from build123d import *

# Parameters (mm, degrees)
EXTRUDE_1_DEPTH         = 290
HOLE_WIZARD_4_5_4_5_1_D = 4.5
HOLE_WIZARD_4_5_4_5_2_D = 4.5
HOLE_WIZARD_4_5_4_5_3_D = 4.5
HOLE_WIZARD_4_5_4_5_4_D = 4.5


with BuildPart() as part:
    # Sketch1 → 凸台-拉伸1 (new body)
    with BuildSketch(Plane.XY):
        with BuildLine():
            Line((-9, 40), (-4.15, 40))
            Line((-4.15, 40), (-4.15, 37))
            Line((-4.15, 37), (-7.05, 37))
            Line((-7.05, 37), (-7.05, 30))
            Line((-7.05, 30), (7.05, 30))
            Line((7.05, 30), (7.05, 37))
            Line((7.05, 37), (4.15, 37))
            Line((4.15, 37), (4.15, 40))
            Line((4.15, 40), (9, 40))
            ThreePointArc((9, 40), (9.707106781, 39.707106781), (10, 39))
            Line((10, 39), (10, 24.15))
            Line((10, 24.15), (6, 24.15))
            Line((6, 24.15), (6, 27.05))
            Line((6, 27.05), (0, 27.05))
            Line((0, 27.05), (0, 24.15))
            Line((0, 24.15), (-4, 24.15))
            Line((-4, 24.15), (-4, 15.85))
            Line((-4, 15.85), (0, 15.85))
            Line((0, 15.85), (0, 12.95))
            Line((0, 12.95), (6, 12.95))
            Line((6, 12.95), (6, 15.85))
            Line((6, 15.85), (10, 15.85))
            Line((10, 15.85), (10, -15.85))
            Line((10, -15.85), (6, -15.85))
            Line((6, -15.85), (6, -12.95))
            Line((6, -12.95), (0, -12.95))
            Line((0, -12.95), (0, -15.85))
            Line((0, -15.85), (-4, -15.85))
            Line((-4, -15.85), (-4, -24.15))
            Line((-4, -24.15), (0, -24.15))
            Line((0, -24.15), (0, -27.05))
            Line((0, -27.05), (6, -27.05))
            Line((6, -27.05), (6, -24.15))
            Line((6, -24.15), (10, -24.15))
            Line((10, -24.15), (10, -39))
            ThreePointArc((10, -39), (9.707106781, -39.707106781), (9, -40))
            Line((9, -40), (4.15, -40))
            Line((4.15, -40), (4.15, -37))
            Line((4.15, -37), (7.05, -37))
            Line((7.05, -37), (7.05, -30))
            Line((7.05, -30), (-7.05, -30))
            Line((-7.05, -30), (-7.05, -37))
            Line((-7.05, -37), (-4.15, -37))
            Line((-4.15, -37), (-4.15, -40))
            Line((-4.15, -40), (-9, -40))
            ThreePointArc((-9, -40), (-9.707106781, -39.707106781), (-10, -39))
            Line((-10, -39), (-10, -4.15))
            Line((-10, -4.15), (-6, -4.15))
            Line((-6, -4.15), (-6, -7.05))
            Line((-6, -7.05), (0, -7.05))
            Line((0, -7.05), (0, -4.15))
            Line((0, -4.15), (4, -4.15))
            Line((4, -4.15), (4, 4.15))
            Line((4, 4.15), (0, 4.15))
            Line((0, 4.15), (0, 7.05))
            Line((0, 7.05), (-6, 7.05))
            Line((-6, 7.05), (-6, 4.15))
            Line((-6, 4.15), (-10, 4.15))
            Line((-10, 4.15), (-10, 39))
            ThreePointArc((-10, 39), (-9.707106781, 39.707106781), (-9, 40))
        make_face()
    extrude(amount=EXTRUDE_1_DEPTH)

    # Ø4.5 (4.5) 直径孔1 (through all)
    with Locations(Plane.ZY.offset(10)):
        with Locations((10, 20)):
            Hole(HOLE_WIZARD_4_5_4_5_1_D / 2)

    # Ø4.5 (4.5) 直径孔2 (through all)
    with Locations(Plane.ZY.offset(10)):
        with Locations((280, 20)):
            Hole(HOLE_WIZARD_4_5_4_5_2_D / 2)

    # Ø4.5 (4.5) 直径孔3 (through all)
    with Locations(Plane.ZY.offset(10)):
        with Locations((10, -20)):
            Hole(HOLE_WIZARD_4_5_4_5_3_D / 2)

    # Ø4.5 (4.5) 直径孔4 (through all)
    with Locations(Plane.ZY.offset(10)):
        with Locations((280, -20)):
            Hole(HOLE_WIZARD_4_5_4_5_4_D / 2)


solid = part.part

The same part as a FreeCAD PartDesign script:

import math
import FreeCAD as App
import Part
import Sketcher

V = App.Vector
Q = App.Units.Quantity

doc = App.newDocument("Part")
body = doc.addObject("PartDesign::Body", "Body")

# Sketch on XY plane
sketch1 = body.newObject("Sketcher::SketchObject", "Sketch")
sketch1.AttachmentSupport = (doc.getObject("XY_Plane"), [""])
sketch1.MapMode = "FlatFace"
sketch1.addGeometry(Part.LineSegment(V(-4.15, 40, 0), V(-9, 40, 0)), False)
sketch1.addGeometry(Part.ArcOfCircle(Part.Circle(V(-9, 39, 0), V(0, 0, 1), 1), math.radians(90), math.radians(180)), False)
sketch1.addGeometry(Part.LineSegment(V(-10, 39, 0), V(-10, 4.15, 0)), False)
sketch1.addGeometry(Part.LineSegment(V(-10, 4.15, 0), V(-6, 4.15, 0)), False)
sketch1.addGeometry(Part.LineSegment(V(-6, 4.15, 0), V(-6, 7.05, 0)), False)
sketch1.addGeometry(Part.LineSegment(V(-6, 7.05, 0), V(0, 7.05, 0)), False)
sketch1.addGeometry(Part.LineSegment(V(0, 7.05, 0), V(0, 4.15, 0)), False)
sketch1.addGeometry(Part.LineSegment(V(0, 4.15, 0), V(4, 4.15, 0)), False)
sketch1.addGeometry(Part.LineSegment(V(4, 4.15, 0), V(4, -4.15, 0)), False)
sketch1.addGeometry(Part.LineSegment(V(4, -4.15, 0), V(0, -4.15, 0)), False)
sketch1.addGeometry(Part.LineSegment(V(0, -4.15, 0), V(0, -7.05, 0)), False)
sketch1.addGeometry(Part.LineSegment(V(0, -7.05, 0), V(-6, -7.05, 0)), False)
sketch1.addGeometry(Part.LineSegment(V(-6, -7.05, 0), V(-6, -4.15, 0)), False)
sketch1.addGeometry(Part.LineSegment(V(-6, -4.15, 0), V(-10, -4.15, 0)), False)
sketch1.addGeometry(Part.LineSegment(V(-10, -4.15, 0), V(-10, -39, 0)), False)
sketch1.addGeometry(Part.ArcOfCircle(Part.Circle(V(-9, -39, 0), V(0, 0, 1), 1), math.radians(-180), math.radians(-90)), False)
sketch1.addGeometry(Part.LineSegment(V(-9, -40, 0), V(-4.15, -40, 0)), False)
sketch1.addGeometry(Part.LineSegment(V(-4.15, -40, 0), V(-4.15, -37, 0)), False)
sketch1.addGeometry(Part.LineSegment(V(-4.15, -37, 0), V(-7.05, -37, 0)), False)
sketch1.addGeometry(Part.LineSegment(V(-7.05, -37, 0), V(-7.05, -30, 0)), False)
sketch1.addGeometry(Part.LineSegment(V(-7.05, -30, 0), V(7.05, -30, 0)), False)
sketch1.addGeometry(Part.LineSegment(V(7.05, -30, 0), V(7.05, -37, 0)), False)
sketch1.addGeometry(Part.LineSegment(V(7.05, -37, 0), V(4.15, -37, 0)), False)
sketch1.addGeometry(Part.LineSegment(V(4.15, -37, 0), V(4.15, -40, 0)), False)
sketch1.addGeometry(Part.LineSegment(V(4.15, -40, 0), V(9, -40, 0)), False)
sketch1.addGeometry(Part.ArcOfCircle(Part.Circle(V(9, -39, 0), V(0, 0, 1), 1), math.radians(-90), math.radians(0)), False)
sketch1.addGeometry(Part.LineSegment(V(10, -39, 0), V(10, -24.15, 0)), False)
sketch1.addGeometry(Part.LineSegment(V(10, -24.15, 0), V(6, -24.15, 0)), False)
sketch1.addGeometry(Part.LineSegment(V(6, -24.15, 0), V(6, -27.05, 0)), False)
sketch1.addGeometry(Part.LineSegment(V(6, -27.05, 0), V(0, -27.05, 0)), False)
sketch1.addGeometry(Part.LineSegment(V(0, -27.05, 0), V(0, -24.15, 0)), False)
sketch1.addGeometry(Part.LineSegment(V(0, -24.15, 0), V(-4, -24.15, 0)), False)
sketch1.addGeometry(Part.LineSegment(V(-4, -24.15, 0), V(-4, -15.85, 0)), False)
sketch1.addGeometry(Part.LineSegment(V(-4, -15.85, 0), V(0, -15.85, 0)), False)
sketch1.addGeometry(Part.LineSegment(V(0, -15.85, 0), V(0, -12.95, 0)), False)
sketch1.addGeometry(Part.LineSegment(V(0, -12.95, 0), V(6, -12.95, 0)), False)
sketch1.addGeometry(Part.LineSegment(V(6, -12.95, 0), V(6, -15.85, 0)), False)
sketch1.addGeometry(Part.LineSegment(V(6, -15.85, 0), V(10, -15.85, 0)), False)
sketch1.addGeometry(Part.LineSegment(V(10, -15.85, 0), V(10, 15.85, 0)), False)
sketch1.addGeometry(Part.LineSegment(V(10, 15.85, 0), V(6, 15.85, 0)), False)
sketch1.addGeometry(Part.LineSegment(V(6, 15.85, 0), V(6, 12.95, 0)), False)
sketch1.addGeometry(Part.LineSegment(V(6, 12.95, 0), V(0, 12.95, 0)), False)
sketch1.addGeometry(Part.LineSegment(V(0, 12.95, 0), V(0, 15.85, 0)), False)
sketch1.addGeometry(Part.LineSegment(V(0, 15.85, 0), V(-4, 15.85, 0)), False)
sketch1.addGeometry(Part.LineSegment(V(-4, 15.85, 0), V(-4, 24.15, 0)), False)
sketch1.addGeometry(Part.LineSegment(V(-4, 24.15, 0), V(0, 24.15, 0)), False)
sketch1.addGeometry(Part.LineSegment(V(0, 24.15, 0), V(0, 27.05, 0)), False)
sketch1.addGeometry(Part.LineSegment(V(0, 27.05, 0), V(6, 27.05, 0)), False)
sketch1.addGeometry(Part.LineSegment(V(6, 27.05, 0), V(6, 24.15, 0)), False)
sketch1.addGeometry(Part.LineSegment(V(6, 24.15, 0), V(10, 24.15, 0)), False)
sketch1.addGeometry(Part.LineSegment(V(10, 24.15, 0), V(10, 39, 0)), False)
sketch1.addGeometry(Part.ArcOfCircle(Part.Circle(V(9, 39, 0), V(0, 0, 1), 1), math.radians(0), math.radians(90)), False)
sketch1.addGeometry(Part.LineSegment(V(9, 40, 0), V(4.15, 40, 0)), False)
sketch1.addGeometry(Part.LineSegment(V(4.15, 40, 0), V(4.15, 37, 0)), False)
sketch1.addGeometry(Part.LineSegment(V(4.15, 37, 0), V(7.05, 37, 0)), False)
sketch1.addGeometry(Part.LineSegment(V(7.05, 37, 0), V(7.05, 30, 0)), False)
sketch1.addGeometry(Part.LineSegment(V(7.05, 30, 0), V(-7.05, 30, 0)), False)
sketch1.addGeometry(Part.LineSegment(V(-7.05, 30, 0), V(-7.05, 37, 0)), False)
sketch1.addGeometry(Part.LineSegment(V(-7.05, 37, 0), V(-4.15, 37, 0)), False)
sketch1.addGeometry(Part.LineSegment(V(-4.15, 37, 0), V(-4.15, 40, 0)), False)
sketch1.addConstraint(Sketcher.Constraint("Tangent", 0, 2, 1, 1))
sketch1.addConstraint(Sketcher.Constraint("Tangent", 1, 2, 2, 1))
sketch1.addConstraint(Sketcher.Constraint("Coincident", 2, 2, 3, 1))
sketch1.addConstraint(Sketcher.Constraint("Coincident", 3, 2, 4, 1))
sketch1.addConstraint(Sketcher.Constraint("Coincident", 4, 2, 5, 1))
sketch1.addConstraint(Sketcher.Constraint("Coincident", 5, 2, 6, 1))
sketch1.addConstraint(Sketcher.Constraint("Coincident", 6, 2, 7, 1))
sketch1.addConstraint(Sketcher.Constraint("Coincident", 7, 2, 8, 1))
sketch1.addConstraint(Sketcher.Constraint("Coincident", 8, 2, 9, 1))
sketch1.addConstraint(Sketcher.Constraint("Coincident", 9, 2, 10, 1))
sketch1.addConstraint(Sketcher.Constraint("Coincident", 10, 2, 11, 1))
sketch1.addConstraint(Sketcher.Constraint("Coincident", 11, 2, 12, 1))
sketch1.addConstraint(Sketcher.Constraint("Coincident", 12, 2, 13, 1))
sketch1.addConstraint(Sketcher.Constraint("Coincident", 13, 2, 14, 1))
sketch1.addConstraint(Sketcher.Constraint("Tangent", 14, 2, 15, 1))
sketch1.addConstraint(Sketcher.Constraint("Tangent", 15, 2, 16, 1))
sketch1.addConstraint(Sketcher.Constraint("Coincident", 16, 2, 17, 1))
sketch1.addConstraint(Sketcher.Constraint("Coincident", 17, 2, 18, 1))
sketch1.addConstraint(Sketcher.Constraint("Coincident", 18, 2, 19, 1))
sketch1.addConstraint(Sketcher.Constraint("Coincident", 19, 2, 20, 1))
sketch1.addConstraint(Sketcher.Constraint("Coincident", 20, 2, 21, 1))
sketch1.addConstraint(Sketcher.Constraint("Coincident", 21, 2, 22, 1))
sketch1.addConstraint(Sketcher.Constraint("Coincident", 22, 2, 23, 1))
sketch1.addConstraint(Sketcher.Constraint("Coincident", 23, 2, 24, 1))
sketch1.addConstraint(Sketcher.Constraint("Tangent", 24, 2, 25, 1))
sketch1.addConstraint(Sketcher.Constraint("Tangent", 25, 2, 26, 1))
sketch1.addConstraint(Sketcher.Constraint("Coincident", 26, 2, 27, 1))
sketch1.addConstraint(Sketcher.Constraint("Coincident", 27, 2, 28, 1))
sketch1.addConstraint(Sketcher.Constraint("Coincident", 28, 2, 29, 1))
sketch1.addConstraint(Sketcher.Constraint("Coincident", 29, 2, 30, 1))
sketch1.addConstraint(Sketcher.Constraint("Coincident", 30, 2, 31, 1))
sketch1.addConstraint(Sketcher.Constraint("Coincident", 31, 2, 32, 1))
sketch1.addConstraint(Sketcher.Constraint("Coincident", 32, 2, 33, 1))
sketch1.addConstraint(Sketcher.Constraint("Coincident", 33, 2, 34, 1))
sketch1.addConstraint(Sketcher.Constraint("Coincident", 34, 2, 35, 1))
sketch1.addConstraint(Sketcher.Constraint("Coincident", 35, 2, 36, 1))
sketch1.addConstraint(Sketcher.Constraint("Coincident", 36, 2, 37, 1))
sketch1.addConstraint(Sketcher.Constraint("Coincident", 37, 2, 38, 1))
sketch1.addConstraint(Sketcher.Constraint("Coincident", 38, 2, 39, 1))
sketch1.addConstraint(Sketcher.Constraint("Coincident", 39, 2, 40, 1))
sketch1.addConstraint(Sketcher.Constraint("Coincident", 40, 2, 41, 1))
sketch1.addConstraint(Sketcher.Constraint("Coincident", 41, 2, 42, 1))
sketch1.addConstraint(Sketcher.Constraint("Coincident", 42, 2, 43, 1))
sketch1.addConstraint(Sketcher.Constraint("Coincident", 43, 2, 44, 1))
sketch1.addConstraint(Sketcher.Constraint("Coincident", 44, 2, 45, 1))
sketch1.addConstraint(Sketcher.Constraint("Coincident", 45, 2, 46, 1))
sketch1.addConstraint(Sketcher.Constraint("Coincident", 46, 2, 47, 1))
sketch1.addConstraint(Sketcher.Constraint("Coincident", 47, 2, 48, 1))
sketch1.addConstraint(Sketcher.Constraint("Coincident", 48, 2, 49, 1))
sketch1.addConstraint(Sketcher.Constraint("Coincident", 49, 2, 50, 1))
sketch1.addConstraint(Sketcher.Constraint("Tangent", 50, 2, 51, 1))
sketch1.addConstraint(Sketcher.Constraint("Tangent", 51, 2, 52, 1))
sketch1.addConstraint(Sketcher.Constraint("Coincident", 52, 2, 53, 1))
sketch1.addConstraint(Sketcher.Constraint("Coincident", 53, 2, 54, 1))
sketch1.addConstraint(Sketcher.Constraint("Coincident", 54, 2, 55, 1))
sketch1.addConstraint(Sketcher.Constraint("Coincident", 55, 2, 56, 1))
sketch1.addConstraint(Sketcher.Constraint("Coincident", 56, 2, 57, 1))
sketch1.addConstraint(Sketcher.Constraint("Coincident", 57, 2, 58, 1))
sketch1.addConstraint(Sketcher.Constraint("Coincident", 58, 2, 59, 1))
sketch1.addConstraint(Sketcher.Constraint("Coincident", 59, 2, 0, 1))
sketch1.addConstraint(Sketcher.Constraint("Horizontal", 0))
sketch1.addConstraint(Sketcher.Constraint("Vertical", 2))
sketch1.addConstraint(Sketcher.Constraint("Horizontal", 3))
sketch1.addConstraint(Sketcher.Constraint("Vertical", 4))
sketch1.addConstraint(Sketcher.Constraint("Horizontal", 5))
sketch1.addConstraint(Sketcher.Constraint("Vertical", 6))
sketch1.addConstraint(Sketcher.Constraint("Horizontal", 7))
sketch1.addConstraint(Sketcher.Constraint("Vertical", 8))
sketch1.addConstraint(Sketcher.Constraint("Horizontal", 9))
sketch1.addConstraint(Sketcher.Constraint("Vertical", 10))
sketch1.addConstraint(Sketcher.Constraint("Horizontal", 11))
sketch1.addConstraint(Sketcher.Constraint("Vertical", 12))
sketch1.addConstraint(Sketcher.Constraint("Horizontal", 13))
sketch1.addConstraint(Sketcher.Constraint("Vertical", 14))
sketch1.addConstraint(Sketcher.Constraint("Horizontal", 16))
sketch1.addConstraint(Sketcher.Constraint("Vertical", 17))
sketch1.addConstraint(Sketcher.Constraint("Horizontal", 18))
sketch1.addConstraint(Sketcher.Constraint("Vertical", 19))
sketch1.addConstraint(Sketcher.Constraint("Horizontal", 20))
sketch1.addConstraint(Sketcher.Constraint("Vertical", 21))
sketch1.addConstraint(Sketcher.Constraint("Horizontal", 22))
sketch1.addConstraint(Sketcher.Constraint("Vertical", 23))
sketch1.addConstraint(Sketcher.Constraint("Horizontal", 24))
sketch1.addConstraint(Sketcher.Constraint("Vertical", 26))
sketch1.addConstraint(Sketcher.Constraint("Horizontal", 27))
sketch1.addConstraint(Sketcher.Constraint("Vertical", 28))
sketch1.addConstraint(Sketcher.Constraint("Horizontal", 29))
sketch1.addConstraint(Sketcher.Constraint("Vertical", 30))
sketch1.addConstraint(Sketcher.Constraint("Horizontal", 31))
sketch1.addConstraint(Sketcher.Constraint("Vertical", 32))
sketch1.addConstraint(Sketcher.Constraint("Horizontal", 33))
sketch1.addConstraint(Sketcher.Constraint("Vertical", 34))
sketch1.addConstraint(Sketcher.Constraint("Horizontal", 35))
sketch1.addConstraint(Sketcher.Constraint("Vertical", 36))
sketch1.addConstraint(Sketcher.Constraint("Horizontal", 37))
sketch1.addConstraint(Sketcher.Constraint("Vertical", 38))
sketch1.addConstraint(Sketcher.Constraint("Horizontal", 39))
sketch1.addConstraint(Sketcher.Constraint("Vertical", 40))
sketch1.addConstraint(Sketcher.Constraint("Horizontal", 41))
sketch1.addConstraint(Sketcher.Constraint("Vertical", 42))
sketch1.addConstraint(Sketcher.Constraint("Horizontal", 43))
sketch1.addConstraint(Sketcher.Constraint("Vertical", 44))
sketch1.addConstraint(Sketcher.Constraint("Horizontal", 45))
sketch1.addConstraint(Sketcher.Constraint("Vertical", 46))
sketch1.addConstraint(Sketcher.Constraint("Horizontal", 47))
sketch1.addConstraint(Sketcher.Constraint("Vertical", 48))
sketch1.addConstraint(Sketcher.Constraint("Horizontal", 49))
sketch1.addConstraint(Sketcher.Constraint("Vertical", 50))
sketch1.addConstraint(Sketcher.Constraint("Horizontal", 52))
sketch1.addConstraint(Sketcher.Constraint("Vertical", 53))
sketch1.addConstraint(Sketcher.Constraint("Horizontal", 54))
sketch1.addConstraint(Sketcher.Constraint("Vertical", 55))
sketch1.addConstraint(Sketcher.Constraint("Horizontal", 56))
sketch1.addConstraint(Sketcher.Constraint("Vertical", 57))
sketch1.addConstraint(Sketcher.Constraint("Horizontal", 58))
sketch1.addConstraint(Sketcher.Constraint("Vertical", 59))
sketch1.addConstraint(Sketcher.Constraint("Equal", 1, 15))
sketch1.addConstraint(Sketcher.Constraint("Equal", 15, 25))
sketch1.addConstraint(Sketcher.Constraint("Equal", 25, 51))
sketch1.addConstraint(Sketcher.Constraint("Symmetric", 1, 3, 25, 3, -1, 1))
sketch1.addConstraint(Sketcher.Constraint("Symmetric", 15, 3, 51, 3, -1, 1))
sketch1.addConstraint(Sketcher.Constraint("Symmetric", 6, 2, 9, 2, -1, 1))
sketch1.addConstraint(Sketcher.Constraint("Symmetric", 34, 2, 41, 2, -1, 1))
sketch1.addConstraint(Sketcher.Constraint("Symmetric", 30, 2, 45, 2, -1, 1))
sketch1.addConstraint(Sketcher.Constraint("Symmetric", 17, 2, 53, 2, -1, 1))
sketch1.addConstraint(Sketcher.Constraint("Symmetric", 19, 2, 55, 2, -1, 1))
sketch1.addConstraint(Sketcher.Constraint("Symmetric", 21, 2, 57, 2, -1, 1))
sketch1.addConstraint(Sketcher.Constraint("Symmetric", 15, 3, 25, 3, -2))
sketch1.addConstraint(Sketcher.Constraint("Symmetric", 18, 2, 21, 2, -2))
sketch1.addConstraint(Sketcher.Constraint("Symmetric", 5, 2, 10, 2, -1))
sketch1.addConstraint(Sketcher.Constraint("Symmetric", 3, 2, 12, 2, -1))
sketch1.addConstraint(Sketcher.Constraint("Symmetric", 36, 2, 39, 2, -1))
sketch1.addConstraint(Sketcher.Constraint("Symmetric", 33, 2, 42, 2, -1))
sketch1.addConstraint(Sketcher.Constraint("Symmetric", 29, 2, 46, 2, -1))
sketch1.addConstraint(Sketcher.Constraint("Symmetric", 27, 2, 48, 2, -1))
sketch1.addConstraint(Sketcher.Constraint("Horizontal", 3, 2, 6, 2))
sketch1.addConstraint(Sketcher.Constraint("Horizontal", 27, 2, 30, 2))
sketch1.addConstraint(Sketcher.Constraint("Horizontal", 33, 2, 36, 2))
sketch1.addConstraint(Sketcher.Constraint("Vertical", 28, 2, 35, 2))
sketch1.addConstraint(Sketcher.Constraint("Vertical", 26, 2, 37, 2))
sketch1.addConstraint(Sketcher.Constraint("Vertical", 32, 2, 43, 2))
sketch1.addConstraint(Sketcher.Constraint("Vertical", 23, 2, 52, 2))
sketch1.addConstraint(Sketcher.Constraint("Vertical", 17, 2, 58, 2))
sketch1.addConstraint(Sketcher.Constraint("Equal", 3, 7))
sketch1.addConstraint(Sketcher.Constraint("Equal", 13, 27))
sketch1.addConstraint(Sketcher.Constraint("Equal", 27, 31))
sketch1.addConstraint(Sketcher.Constraint("Equal", 58, 4))
sketch1.addConstraint(Sketcher.Constraint("Equal", 12, 28))
sketch1.addConstraint(Sketcher.Constraint("Equal", 8, 32))
sketch1.addConstraint(Sketcher.Constraint("Equal", 30, 34))
sketch1.addConstraint(Sketcher.Constraint("Radius", 1, Q("1 mm")))
sketch1.addConstraint(Sketcher.Constraint("DistanceX", 3, 1, 3, 2, Q("4 mm")))
sketch1.addConstraint(Sketcher.Constraint("DistanceX", 5, 1, 5, 2, Q("6 mm")))
sketch1.addConstraint(Sketcher.Constraint("DistanceY", 17, 1, 17, 2, Q("3 mm")))
sketch1.addConstraint(Sketcher.Constraint("DistanceY", 19, 1, 19, 2, Q("7 mm")))
sketch1.addConstraint(Sketcher.Constraint("DistanceX", 18, 2, 18, 1, Q("2.9 mm")))
sketch1.addConstraint(Sketcher.Constraint("DistanceX", 20, 1, 20, 2, Q("14.1 mm")))
sketch1.addConstraint(Sketcher.Constraint("DistanceY", 8, 2, 8, 1, Q("8.3 mm")))
sketch1.addConstraint(Sketcher.Constraint("DistanceY", 38, 1, 38, 2, Q("31.7 mm")))
sketch1.addConstraint(Sketcher.Constraint("DistanceY", -1, 1, 1, 3, Q("39 mm")))
pad1 = body.newObject("PartDesign::Pad", "Pad")
pad1.Profile = sketch1
pad1.Length = 290

# Sketch on YZ plane
sketch2 = body.newObject("Sketcher::SketchObject", "Sketch001")
sketch2.AttachmentSupport = (doc.getObject("YZ_Plane"), [""])
sketch2.MapMode = "FlatFace"
sketch2.AttachmentOffset = App.Placement(V(0, 0, -10), App.Rotation())
sketch2.addGeometry(Part.Circle(V(20, 10, 0), V(0, 0, 1), 2.25), False)
sketch2.addConstraint(Sketcher.Constraint("Diameter", 0, Q("4.5 mm")))
sketch2.addConstraint(Sketcher.Constraint("DistanceX", -1, 1, 0, 3, Q("20 mm")))
sketch2.addConstraint(Sketcher.Constraint("DistanceY", -1, 1, 0, 3, Q("10 mm")))
doc.recompute()
hole = body.newObject("PartDesign::Hole", "Hole")
hole.Profile = sketch2
hole.ThreadType = "None"
hole.Diameter = 4.5
hole.DepthType = "ThroughAll"
hole.Reversed = True

# Sketch on YZ plane
sketch3 = body.newObject("Sketcher::SketchObject", "Sketch002")
sketch3.AttachmentSupport = (doc.getObject("YZ_Plane"), [""])
sketch3.MapMode = "FlatFace"
sketch3.AttachmentOffset = App.Placement(V(0, 0, -10), App.Rotation())
sketch3.addGeometry(Part.Circle(V(20, 280, 0), V(0, 0, 1), 2.25), False)
sketch3.addConstraint(Sketcher.Constraint("Diameter", 0, Q("4.5 mm")))
sketch3.addConstraint(Sketcher.Constraint("DistanceX", -1, 1, 0, 3, Q("20 mm")))
sketch3.addConstraint(Sketcher.Constraint("DistanceY", -1, 1, 0, 3, Q("280 mm")))
doc.recompute()
hole2 = body.newObject("PartDesign::Hole", "Hole001")
hole2.Profile = sketch3
hole2.ThreadType = "None"
hole2.Diameter = 4.5
hole2.DepthType = "ThroughAll"
hole2.Reversed = True

# Sketch on YZ plane
sketch4 = body.newObject("Sketcher::SketchObject", "Sketch003")
sketch4.AttachmentSupport = (doc.getObject("YZ_Plane"), [""])
sketch4.MapMode = "FlatFace"
sketch4.AttachmentOffset = App.Placement(V(0, 0, -10), App.Rotation())
sketch4.addGeometry(Part.Circle(V(-20, 10, 0), V(0, 0, 1), 2.25), False)
sketch4.addConstraint(Sketcher.Constraint("Diameter", 0, Q("4.5 mm")))
sketch4.addConstraint(Sketcher.Constraint("DistanceX", 0, 3, -1, 1, Q("20 mm")))
sketch4.addConstraint(Sketcher.Constraint("DistanceY", -1, 1, 0, 3, Q("10 mm")))
doc.recompute()
hole3 = body.newObject("PartDesign::Hole", "Hole002")
hole3.Profile = sketch4
hole3.ThreadType = "None"
hole3.Diameter = 4.5
hole3.DepthType = "ThroughAll"
hole3.Reversed = True

# Sketch on YZ plane
sketch5 = body.newObject("Sketcher::SketchObject", "Sketch004")
sketch5.AttachmentSupport = (doc.getObject("YZ_Plane"), [""])
sketch5.MapMode = "FlatFace"
sketch5.AttachmentOffset = App.Placement(V(0, 0, -10), App.Rotation())
sketch5.addGeometry(Part.Circle(V(-20, 280, 0), V(0, 0, 1), 2.25), False)
sketch5.addConstraint(Sketcher.Constraint("Diameter", 0, Q("4.5 mm")))
sketch5.addConstraint(Sketcher.Constraint("DistanceX", 0, 3, -1, 1, Q("20 mm")))
sketch5.addConstraint(Sketcher.Constraint("DistanceY", -1, 1, 0, 3, Q("280 mm")))
doc.recompute()
hole4 = body.newObject("PartDesign::Hole", "Hole003")
hole4.Profile = sketch5
hole4.ThreadType = "None"
hole4.Diameter = 4.5
hole4.DepthType = "ThroughAll"
hole4.Reversed = True

doc.recompute()
